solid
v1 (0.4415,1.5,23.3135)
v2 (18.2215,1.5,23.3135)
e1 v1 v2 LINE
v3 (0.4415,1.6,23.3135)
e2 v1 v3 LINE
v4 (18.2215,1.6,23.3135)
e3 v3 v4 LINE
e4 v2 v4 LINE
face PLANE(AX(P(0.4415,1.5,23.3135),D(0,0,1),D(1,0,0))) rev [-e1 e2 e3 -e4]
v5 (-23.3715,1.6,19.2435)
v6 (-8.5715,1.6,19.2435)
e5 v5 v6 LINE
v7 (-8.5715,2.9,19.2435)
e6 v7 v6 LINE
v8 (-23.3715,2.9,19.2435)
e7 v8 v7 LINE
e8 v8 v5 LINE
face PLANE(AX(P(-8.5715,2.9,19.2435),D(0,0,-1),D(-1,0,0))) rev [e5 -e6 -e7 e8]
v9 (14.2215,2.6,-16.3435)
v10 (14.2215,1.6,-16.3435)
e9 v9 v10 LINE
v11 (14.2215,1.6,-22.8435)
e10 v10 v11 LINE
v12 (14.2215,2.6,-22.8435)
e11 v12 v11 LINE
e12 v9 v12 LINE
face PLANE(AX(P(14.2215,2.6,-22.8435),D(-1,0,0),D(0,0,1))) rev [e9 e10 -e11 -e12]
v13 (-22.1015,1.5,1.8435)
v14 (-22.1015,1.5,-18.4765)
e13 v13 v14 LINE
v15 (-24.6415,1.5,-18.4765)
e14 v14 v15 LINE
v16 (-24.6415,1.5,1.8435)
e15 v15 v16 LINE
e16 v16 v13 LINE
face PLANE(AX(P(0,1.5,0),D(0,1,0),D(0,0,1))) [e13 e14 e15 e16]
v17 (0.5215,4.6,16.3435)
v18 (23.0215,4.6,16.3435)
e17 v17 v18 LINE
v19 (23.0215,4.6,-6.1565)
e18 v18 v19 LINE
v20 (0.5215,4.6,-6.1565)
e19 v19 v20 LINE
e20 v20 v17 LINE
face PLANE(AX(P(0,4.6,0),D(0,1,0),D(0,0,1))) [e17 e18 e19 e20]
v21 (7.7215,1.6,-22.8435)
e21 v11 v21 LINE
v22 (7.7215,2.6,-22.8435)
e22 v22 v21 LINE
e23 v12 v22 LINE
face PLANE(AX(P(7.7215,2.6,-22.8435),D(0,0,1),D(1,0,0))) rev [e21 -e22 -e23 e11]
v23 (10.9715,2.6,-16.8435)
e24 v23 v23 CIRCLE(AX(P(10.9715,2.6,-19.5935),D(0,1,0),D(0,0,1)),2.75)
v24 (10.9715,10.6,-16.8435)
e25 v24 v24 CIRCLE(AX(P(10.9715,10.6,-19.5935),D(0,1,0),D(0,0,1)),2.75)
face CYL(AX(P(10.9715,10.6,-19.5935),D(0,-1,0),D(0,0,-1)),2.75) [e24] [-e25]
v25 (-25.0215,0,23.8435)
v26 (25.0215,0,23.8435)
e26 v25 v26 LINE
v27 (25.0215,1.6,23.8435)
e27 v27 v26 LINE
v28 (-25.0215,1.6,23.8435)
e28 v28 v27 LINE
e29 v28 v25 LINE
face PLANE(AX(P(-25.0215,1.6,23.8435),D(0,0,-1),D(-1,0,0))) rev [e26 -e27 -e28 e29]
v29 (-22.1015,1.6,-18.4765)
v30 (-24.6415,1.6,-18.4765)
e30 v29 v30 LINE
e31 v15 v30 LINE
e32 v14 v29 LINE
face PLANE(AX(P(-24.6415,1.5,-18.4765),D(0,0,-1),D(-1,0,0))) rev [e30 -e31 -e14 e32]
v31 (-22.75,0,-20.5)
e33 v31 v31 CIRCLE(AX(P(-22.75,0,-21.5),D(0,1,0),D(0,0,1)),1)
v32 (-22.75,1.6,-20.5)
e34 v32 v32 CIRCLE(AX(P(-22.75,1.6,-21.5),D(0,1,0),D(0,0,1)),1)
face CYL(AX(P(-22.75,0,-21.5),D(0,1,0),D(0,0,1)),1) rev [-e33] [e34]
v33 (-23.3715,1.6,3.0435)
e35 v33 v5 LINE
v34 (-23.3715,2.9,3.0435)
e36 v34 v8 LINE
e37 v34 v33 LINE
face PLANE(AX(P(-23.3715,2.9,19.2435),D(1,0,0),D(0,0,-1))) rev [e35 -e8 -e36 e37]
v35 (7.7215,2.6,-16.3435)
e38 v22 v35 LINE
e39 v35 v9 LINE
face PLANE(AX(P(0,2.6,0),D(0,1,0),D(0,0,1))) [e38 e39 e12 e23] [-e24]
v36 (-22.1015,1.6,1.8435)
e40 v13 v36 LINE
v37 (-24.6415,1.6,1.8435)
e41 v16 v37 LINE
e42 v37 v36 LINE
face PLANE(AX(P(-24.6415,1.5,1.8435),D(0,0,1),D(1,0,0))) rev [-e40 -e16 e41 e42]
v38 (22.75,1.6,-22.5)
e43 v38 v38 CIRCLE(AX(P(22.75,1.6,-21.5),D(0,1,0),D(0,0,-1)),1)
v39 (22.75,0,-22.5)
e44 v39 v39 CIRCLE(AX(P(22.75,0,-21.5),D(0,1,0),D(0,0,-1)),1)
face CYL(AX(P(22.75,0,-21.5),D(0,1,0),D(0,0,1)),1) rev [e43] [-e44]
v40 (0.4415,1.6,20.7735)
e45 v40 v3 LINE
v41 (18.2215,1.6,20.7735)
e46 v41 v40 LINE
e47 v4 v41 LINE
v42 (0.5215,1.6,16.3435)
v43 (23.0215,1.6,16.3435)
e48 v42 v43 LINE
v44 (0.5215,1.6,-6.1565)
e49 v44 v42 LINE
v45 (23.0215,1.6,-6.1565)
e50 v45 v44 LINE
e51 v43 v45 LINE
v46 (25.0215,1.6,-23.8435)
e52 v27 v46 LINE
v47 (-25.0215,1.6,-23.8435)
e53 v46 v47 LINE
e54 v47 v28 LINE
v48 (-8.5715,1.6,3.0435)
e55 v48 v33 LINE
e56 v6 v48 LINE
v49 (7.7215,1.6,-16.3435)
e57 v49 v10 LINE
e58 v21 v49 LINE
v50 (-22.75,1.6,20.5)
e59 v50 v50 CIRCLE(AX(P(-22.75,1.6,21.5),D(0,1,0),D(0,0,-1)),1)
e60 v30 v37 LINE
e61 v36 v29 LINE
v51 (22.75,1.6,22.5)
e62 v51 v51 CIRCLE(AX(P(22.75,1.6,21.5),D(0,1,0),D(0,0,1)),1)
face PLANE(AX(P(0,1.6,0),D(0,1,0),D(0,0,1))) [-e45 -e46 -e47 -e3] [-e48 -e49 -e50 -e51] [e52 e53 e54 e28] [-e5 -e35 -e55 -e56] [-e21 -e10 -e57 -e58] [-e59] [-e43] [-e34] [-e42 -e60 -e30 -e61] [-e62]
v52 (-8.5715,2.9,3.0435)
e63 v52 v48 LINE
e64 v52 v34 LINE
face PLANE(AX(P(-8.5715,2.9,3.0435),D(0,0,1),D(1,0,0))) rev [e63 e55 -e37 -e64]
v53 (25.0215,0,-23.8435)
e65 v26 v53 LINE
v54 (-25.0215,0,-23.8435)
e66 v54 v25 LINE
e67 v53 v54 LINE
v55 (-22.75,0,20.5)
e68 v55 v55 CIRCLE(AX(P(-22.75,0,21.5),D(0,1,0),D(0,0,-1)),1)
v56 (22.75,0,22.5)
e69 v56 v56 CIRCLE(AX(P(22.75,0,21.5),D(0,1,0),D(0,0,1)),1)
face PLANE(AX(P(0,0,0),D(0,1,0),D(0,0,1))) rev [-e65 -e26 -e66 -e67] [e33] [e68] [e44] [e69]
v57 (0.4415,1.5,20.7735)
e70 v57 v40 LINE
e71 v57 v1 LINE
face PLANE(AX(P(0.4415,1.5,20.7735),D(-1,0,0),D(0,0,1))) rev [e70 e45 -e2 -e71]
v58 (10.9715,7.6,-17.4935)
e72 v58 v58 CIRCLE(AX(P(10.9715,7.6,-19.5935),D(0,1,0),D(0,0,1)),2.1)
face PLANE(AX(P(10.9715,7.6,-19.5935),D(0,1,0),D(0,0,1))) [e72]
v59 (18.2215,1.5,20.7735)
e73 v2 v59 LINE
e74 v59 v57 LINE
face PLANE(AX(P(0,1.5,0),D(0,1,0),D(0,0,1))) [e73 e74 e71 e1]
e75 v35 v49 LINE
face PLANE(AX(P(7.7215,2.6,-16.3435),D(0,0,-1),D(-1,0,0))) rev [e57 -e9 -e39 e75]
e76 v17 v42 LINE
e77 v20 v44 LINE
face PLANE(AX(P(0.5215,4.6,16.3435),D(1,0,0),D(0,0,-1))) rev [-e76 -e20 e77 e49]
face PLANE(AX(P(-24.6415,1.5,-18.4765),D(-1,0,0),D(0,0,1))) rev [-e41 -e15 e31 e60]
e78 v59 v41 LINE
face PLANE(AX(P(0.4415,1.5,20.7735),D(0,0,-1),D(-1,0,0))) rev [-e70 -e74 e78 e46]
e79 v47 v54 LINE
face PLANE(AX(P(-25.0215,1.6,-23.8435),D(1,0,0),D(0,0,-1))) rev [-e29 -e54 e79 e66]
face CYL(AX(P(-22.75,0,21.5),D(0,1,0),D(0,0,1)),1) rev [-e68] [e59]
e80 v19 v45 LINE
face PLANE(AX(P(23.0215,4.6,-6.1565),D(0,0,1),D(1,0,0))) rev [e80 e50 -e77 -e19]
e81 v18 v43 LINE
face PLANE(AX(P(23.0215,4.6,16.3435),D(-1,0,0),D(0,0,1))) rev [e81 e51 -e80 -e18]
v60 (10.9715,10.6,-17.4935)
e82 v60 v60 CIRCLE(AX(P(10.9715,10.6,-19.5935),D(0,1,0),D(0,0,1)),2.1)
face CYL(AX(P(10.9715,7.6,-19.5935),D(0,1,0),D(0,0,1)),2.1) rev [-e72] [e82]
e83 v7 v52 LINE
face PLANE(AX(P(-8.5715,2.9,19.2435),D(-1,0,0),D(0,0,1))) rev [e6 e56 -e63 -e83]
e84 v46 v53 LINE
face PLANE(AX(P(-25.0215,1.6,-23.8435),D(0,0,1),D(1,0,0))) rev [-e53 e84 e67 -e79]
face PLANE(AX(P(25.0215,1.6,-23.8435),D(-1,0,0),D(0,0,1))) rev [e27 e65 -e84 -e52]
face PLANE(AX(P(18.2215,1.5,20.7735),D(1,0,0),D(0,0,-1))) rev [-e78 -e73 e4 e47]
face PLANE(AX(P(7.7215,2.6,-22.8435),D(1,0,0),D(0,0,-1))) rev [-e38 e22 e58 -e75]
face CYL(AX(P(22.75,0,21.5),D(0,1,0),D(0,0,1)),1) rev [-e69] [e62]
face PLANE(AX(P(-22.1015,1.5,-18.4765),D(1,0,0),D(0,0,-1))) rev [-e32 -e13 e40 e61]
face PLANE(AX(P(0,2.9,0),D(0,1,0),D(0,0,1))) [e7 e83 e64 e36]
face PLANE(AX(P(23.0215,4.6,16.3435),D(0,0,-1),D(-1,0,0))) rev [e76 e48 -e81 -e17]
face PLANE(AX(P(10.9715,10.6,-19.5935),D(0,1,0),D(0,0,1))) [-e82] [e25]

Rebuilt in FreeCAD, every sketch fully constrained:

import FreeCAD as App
import Part
import Sketcher
Q = App.Units.Quantity


def add_polygon(sketch, points):
    """Adds a closed chain of lines whose ends are joined by coincident constraints."""
    first, n = sketch.GeometryCount, len(points)
    for a, b in zip(points, points[1:] + points[:1]):
        sketch.addGeometry(Part.LineSegment(App.Vector(*a, 0), App.Vector(*b, 0)), False)
    for i in range(n):
        sketch.addConstraint(Sketcher.Constraint("Coincident", first + i, 2, first + (i + 1) % n, 1))

doc = App.newDocument("Part")
params = doc.addObject("Spreadsheet::Sheet", "Params")
for row, (alias, value) in enumerate([
    ("pad1_length", "1.6 mm"),
    ("sketch2_diameter", "2 mm"),
    ("pocket1_length", "1.6 mm"),
    ("sketch3_width", "22.5 mm"),
    ("pad2_length", "3 mm"),
    ("sketch4_width", "14.8 mm"),
    ("sketch4_height", "16.2 mm"),
    ("pad3_length", "1.3 mm"),
    ("sketch5_width", "2.54 mm"),
    ("sketch5_width2", "17.78 mm"),
    ("sketch5_height", "20.32 mm"),
    ("pocket2_length", "0.1 mm"),
    ("sketch6_width", "6.5 mm"),
    ("pad4_length", "1 mm"),
    ("sketch7_diameter", "5.5 mm"),
    ("pad5_length", "8 mm"),
    ("sketch8_diameter", "4.2 mm"),
    ("pocket3_length", "3 mm"),
], start=1):
    params.set(f"A{row}", alias)
    params.set(f"B{row}", "=" + value)
    params.setAlias(f"B{row}", alias)

body = doc.addObject("PartDesign::Body", "Body")

sketch1 = body.newObject("Sketcher::SketchObject", "Sketch")
sketch1.AttachmentSupport = (doc.getObject("XZ_Plane"), [""])
sketch1.MapMode = "FlatFace"
add_polygon(sketch1, [(-25, -24), (-25, 24), (25, 24), (25, -24)])
sketch1.addConstraint([
    Sketcher.Constraint("Vertical", 0),
    Sketcher.Constraint("Horizontal", 1),
    Sketcher.Constraint("Vertical", 2),
    Sketcher.Constraint("Horizontal", 3),
    Sketcher.Constraint("Symmetric", 0, 2, 2, 2, -1, 1),
    Sketcher.Constraint("DistanceX", 1, 1, 1, 2, Q("50.043 mm")),
    Sketcher.Constraint("DistanceY", 0, 1, 0, 2, Q("47.687 mm")),
])
pad1 = body.newObject("PartDesign::Pad", "Pad")
pad1.Profile = sketch1
pad1.setExpression("Length", "Params.pad1_length")
pad1.Reversed = True

sketch2 = body.newObject("Sketcher::SketchObject", "Sketch001")
sketch2.AttachmentSupport = (doc.getObject("XZ_Plane"), [""])
sketch2.MapMode = "FlatFace"
sketch2.AttachmentOffset = App.Placement(App.Vector(0, 0, -1.6), App.Rotation())
sketch2.addGeometry([
    Part.Circle(App.Vector(-22.8, -21.5, 0), App.Vector(0, 0, 1), 1),
    Part.Circle(App.Vector(22.8, -21.5, 0), App.Vector(0, 0, 1), 1),
    Part.Circle(App.Vector(22.8, 21.5, 0), App.Vector(0, 0, 1), 1),
    Part.Circle(App.Vector(-22.8, 21.5, 0), App.Vector(0, 0, 1), 1),
], False)
sketch2.addConstraint([
    Sketcher.Constraint("Equal", 0, 1),
    Sketcher.Constraint("Equal", 1, 2),
    Sketcher.Constraint("Equal", 2, 3),
    Sketcher.Constraint("Symmetric", 0, 3, 2, 3, -1, 1),
    Sketcher.Constraint("Symmetric", 1, 3, 3, 3, -1, 1),
    Sketcher.Constraint("Symmetric", 0, 3, 1, 3, -2),
    Sketcher.Constraint("Diameter", 0, Q("2 mm")),
    Sketcher.Constraint("DistanceY", 1, 3, 2, 3, Q("43 mm")),
    Sketcher.Constraint("DistanceX", 0, 3, 1, 3, Q("45.5 mm")),
])
sketch2.setExpression("Constraints[6]", "Params.sketch2_diameter")
pocket1 = body.newObject("PartDesign::Pocket", "Pocket")
pocket1.Profile = sketch2
pocket1.setExpression("Length", "Params.pocket1_length")
pocket1.Reversed = True

sketch3 = body.newObject("Sketcher::SketchObject", "Sketch002")
sketch3.AttachmentSupport = (doc.getObject("XZ_Plane"), [""])
sketch3.MapMode = "FlatFace"
sketch3.AttachmentOffset = App.Placement(App.Vector(0, 0, -1.6), App.Rotation())
add_polygon(sketch3, [(1, -6), (1, 16), (23, 16), (23, -6)])
sketch3.addConstraint([
    Sketcher.Constraint("Vertical", 0),
    Sketcher.Constraint("Horizontal", 1),
    Sketcher.Constraint("Vertical", 2),
    Sketcher.Constraint("Horizontal", 3),
    Sketcher.Constraint("Equal", 3, 0),
    Sketcher.Constraint("DistanceX", 1, 1, 1, 2, Q("22.5 mm")),
    Sketcher.Constraint("DistanceX", -1, 1, 0, 2, Q("0.5215 mm")),
    Sketcher.Constraint("DistanceY", -1, 1, 0, 2, Q("16.3435 mm")),
])
sketch3.setExpression("Constraints[9]", "Params.sketch3_width")
pad2 = body.newObject("PartDesign::Pad", "Pad001")
pad2.Profile = sketch3
pad2.setExpression("Length", "Params.pad2_length")
pad2.Reversed = True

sketch4 = body.newObject("Sketcher::SketchObject", "Sketch003")
sketch4.AttachmentSupport = (doc.getObject("XZ_Plane"), [""])
sketch4.MapMode = "FlatFace"
sketch4.AttachmentOffset = App.Placement(App.Vector(0, 0, -1.6), App.Rotation())
add_polygon(sketch4, [(-23, 3), (-23, 19), (-9, 19), (-9, 3)])
sketch4.addConstraint([
    Sketcher.Constraint("Vertical", 0),
    Sketcher.Constraint("Horizontal", 1),
    Sketcher.Constraint("Vertical", 2),
    Sketcher.Constraint("Horizontal", 3),
    Sketcher.Constraint("DistanceX", 1, 1, 1, 2, Q("14.8 mm")),
    Sketcher.Constraint("DistanceY", 0, 1, 0, 2, Q("16.2 mm")),
    Sketcher.Constraint("DistanceX", 0, 2, -1, 1, Q("23.3715 mm")),
    Sketcher.Constraint("DistanceY", -1, 1, 0, 2, Q("19.2435 mm")),
])
sketch4.setExpression("Constraints[8]", "Params.sketch4_width")
sketch4.setExpression("Constraints[9]", "Params.sketch4_height")
pad3 = body.newObject("PartDesign::Pad", "Pad002")
pad3.Profile = sketch4
pad3.setExpression("Length", "Params.pad3_length")
pad3.Reversed = True

sketch5 = body.newObject("Sketcher::SketchObject", "Sketch004")
sketch5.AttachmentSupport = (doc.getObject("XZ_Plane"), [""])
sketch5.MapMode = "FlatFace"
sketch5.AttachmentOffset = App.Placement(App.Vector(0, 0, -1.6), App.Rotation())
add_polygon(sketch5, [(-24.6, -18.5), (-24.6, 1.8), (-22.1, 1.8), (-22.1, -18.5)])
add_polygon(sketch5, [(0.4, 20.8), (0.4, 23.3), (18.2, 23.3), (18.2, 20.8)])
sketch5.addConstraint([
    Sketcher.Constraint("Vertical", 0),
    Sketcher.Constraint("Horizontal", 1),
    Sketcher.Constraint("Vertical", 2),
    Sketcher.Constraint("Horizontal", 3),
    Sketcher.Constraint("Vertical", 4),
    Sketcher.Constraint("Horizontal", 5),
    Sketcher.Constraint("Vertical", 6),
    Sketcher.Constraint("Horizontal", 7),
    Sketcher.Constraint("Equal", 3, 4),
    Sketcher.Constraint("DistanceX", 1, 1, 1, 2, Q("2.54 mm")),
    Sketcher.Constraint("DistanceX", 5, 1, 5, 2, Q("17.78 mm")),
    Sketcher.Constraint("DistanceY", 0, 1, 0, 2, Q("20.32 mm")),
    Sketcher.Constraint("DistanceY", 1, 2, 4, 2, Q("21.47 mm")),
    Sketcher.Constraint("DistanceX", 1, 2, 4, 2, Q("22.543 mm")),
    Sketcher.Constraint("DistanceX", 0, 2, -1, 1, Q("24.6415 mm")),
    Sketcher.Constraint("DistanceY", -1, 1, 0, 2, Q("1.8435 mm")),
])
sketch5.setExpression("Constraints[17]", "Params.sketch5_width")
sketch5.setExpression("Constraints[18]", "Params.sketch5_width2")
sketch5.setExpression("Constraints[19]", "Params.sketch5_height")
pocket2 = body.newObject("PartDesign::Pocket", "Pocket001")
pocket2.Profile = sketch5
pocket2.setExpression("Length", "Params.pocket2_length")
pocket2.Reversed = True

sketch6 = body.newObject("Sketcher::SketchObject", "Sketch005")
sketch6.AttachmentSupport = (doc.getObject("XZ_Plane"), [""])
sketch6.MapMode = "FlatFace"
sketch6.AttachmentOffset = App.Placement(App.Vector(0, 0, -1.6), App.Rotation())
add_polygon(sketch6, [(8, -23), (8, -16), (14, -16), (14, -23)])
sketch6.addConstraint([
    Sketcher.Constraint("Vertical", 0),
    Sketcher.Constraint("Horizontal", 1),
    Sketcher.Constraint("Vertical", 2),
    Sketcher.Constraint("Horizontal", 3),
    Sketcher.Constraint("Equal", 3, 0),
    Sketcher.Constraint("DistanceX", 1, 1, 1, 2, Q("6.5 mm")),
    Sketcher.Constraint("DistanceX", -1, 1, 0, 2, Q("7.7215 mm")),
    Sketcher.Constraint("DistanceY", 0, 2, -1, 1, Q("16.3435 mm")),
])
sketch6.setExpression("Constraints[9]", "Params.sketch6_width")
pad4 = body.newObject("PartDesign::Pad", "Pad003")
pad4.Profile = sketch6
pad4.setExpression("Length", "Params.pad4_length")
pad4.Reversed = True

sketch7 = body.newObject("Sketcher::SketchObject", "Sketch006")
sketch7.AttachmentSupport = (doc.getObject("XZ_Plane"), [""])
sketch7.MapMode = "FlatFace"
sketch7.AttachmentOffset = App.Placement(App.Vector(0, 0, -2.6), App.Rotation())
sketch7.addGeometry(Part.Circle(App.Vector(11, -19.6, 0), App.Vector(0, 0, 1), 2.8), False)
sketch7.addConstraint([
    Sketcher.Constraint("Diameter", 0, Q("5.5 mm")),
    Sketcher.Constraint("DistanceX", -1, 1, 0, 3, Q("10.9715 mm")),
    Sketcher.Constraint("DistanceY", 0, 3, -1, 1, Q("19.5935 mm")),
])
sketch7.setExpression("Constraints[0]", "Params.sketch7_diameter")
pad5 = body.newObject("PartDesign::Pad", "Pad004")
pad5.Profile = sketch7
pad5.setExpression("Length", "Params.pad5_length")
pad5.Reversed = True

sketch8 = body.newObject("Sketcher::SketchObject", "Sketch007")
sketch8.AttachmentSupport = (doc.getObject("XZ_Plane"), [""])
sketch8.MapMode = "FlatFace"
sketch8.AttachmentOffset = App.Placement(App.Vector(0, 0, -10.6), App.Rotation())
sketch8.addGeometry(Part.Circle(App.Vector(11, -19.6, 0), App.Vector(0, 0, 1), 2.1), False)
sketch8.addConstraint([
    Sketcher.Constraint("Diameter", 0, Q("4.2 mm")),
    Sketcher.Constraint("DistanceX", -1, 1, 0, 3, Q("10.9715 mm")),
    Sketcher.Constraint("DistanceY", 0, 3, -1, 1, Q("19.5935 mm")),
])
sketch8.setExpression("Constraints[0]", "Params.sketch8_diameter")
pocket3 = body.newObject("PartDesign::Pocket", "Pocket002")
pocket3.Profile = sketch8
pocket3.setExpression("Length", "Params.pocket3_length")
pocket3.Reversed = True

doc.recompute()
